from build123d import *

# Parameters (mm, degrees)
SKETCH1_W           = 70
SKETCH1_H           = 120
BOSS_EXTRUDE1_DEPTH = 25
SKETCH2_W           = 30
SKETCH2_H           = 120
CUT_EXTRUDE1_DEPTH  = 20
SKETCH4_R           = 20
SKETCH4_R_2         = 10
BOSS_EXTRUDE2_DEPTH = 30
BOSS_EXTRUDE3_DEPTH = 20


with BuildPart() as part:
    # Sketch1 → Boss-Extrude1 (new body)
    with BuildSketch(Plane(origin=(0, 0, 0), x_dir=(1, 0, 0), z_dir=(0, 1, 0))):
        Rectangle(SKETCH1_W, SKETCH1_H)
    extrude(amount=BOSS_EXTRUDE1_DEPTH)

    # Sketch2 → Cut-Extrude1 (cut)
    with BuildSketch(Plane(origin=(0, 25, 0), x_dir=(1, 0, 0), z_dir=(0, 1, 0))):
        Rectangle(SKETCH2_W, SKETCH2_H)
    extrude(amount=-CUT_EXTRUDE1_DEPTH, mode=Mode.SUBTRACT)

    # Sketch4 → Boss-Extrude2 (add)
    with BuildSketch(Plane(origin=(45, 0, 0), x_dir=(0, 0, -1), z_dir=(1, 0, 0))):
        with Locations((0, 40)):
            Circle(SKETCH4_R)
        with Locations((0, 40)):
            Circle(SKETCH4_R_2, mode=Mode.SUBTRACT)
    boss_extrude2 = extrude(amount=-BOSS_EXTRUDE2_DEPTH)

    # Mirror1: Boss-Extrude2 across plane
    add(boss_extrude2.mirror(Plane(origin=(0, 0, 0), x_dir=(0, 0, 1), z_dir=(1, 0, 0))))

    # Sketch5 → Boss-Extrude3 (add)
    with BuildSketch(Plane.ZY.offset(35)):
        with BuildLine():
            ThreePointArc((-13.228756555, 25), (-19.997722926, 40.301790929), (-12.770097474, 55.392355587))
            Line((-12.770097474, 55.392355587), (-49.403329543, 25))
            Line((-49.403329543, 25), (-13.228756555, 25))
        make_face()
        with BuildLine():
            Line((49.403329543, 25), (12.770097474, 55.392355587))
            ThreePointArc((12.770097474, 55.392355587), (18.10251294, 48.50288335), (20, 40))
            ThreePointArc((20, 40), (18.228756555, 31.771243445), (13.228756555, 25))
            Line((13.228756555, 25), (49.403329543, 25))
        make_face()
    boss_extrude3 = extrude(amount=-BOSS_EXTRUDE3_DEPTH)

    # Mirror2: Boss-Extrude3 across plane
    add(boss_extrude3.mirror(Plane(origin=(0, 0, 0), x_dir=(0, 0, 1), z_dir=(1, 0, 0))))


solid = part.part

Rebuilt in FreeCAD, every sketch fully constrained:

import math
import FreeCAD as App
import Part
import Sketcher

V = App.Vector
Q = App.Units.Quantity

doc = App.newDocument("Part")
body = doc.addObject("PartDesign::Body", "Body")

# Sketch on XZ plane
sketch1 = body.newObject("Sketcher::SketchObject", "Sketch")
sketch1.AttachmentSupport = (doc.getObject("XZ_Plane"), [""])
sketch1.MapMode = "FlatFace"
sketch1.addGeometry(Part.LineSegment(V(-35, -60, 0), V(-35, 60, 0)), False)
sketch1.addGeometry(Part.LineSegment(V(-35, 60, 0), V(35, 60, 0)), False)
sketch1.addGeometry(Part.LineSegment(V(35, 60, 0), V(35, -60, 0)), False)
sketch1.addGeometry(Part.LineSegment(V(35, -60, 0), V(-35, -60, 0)), False)
sketch1.addConstraint(Sketcher.Constraint("Coincident", 0, 2, 1, 1))
sketch1.addConstraint(Sketcher.Constraint("Coincident", 1, 2, 2, 1))
sketch1.addConstraint(Sketcher.Constraint("Coincident", 2, 2, 3, 1))
sketch1.addConstraint(Sketcher.Constraint("Coincident", 3, 2, 0, 1))
sketch1.addConstraint(Sketcher.Constraint("Vertical", 0))
sketch1.addConstraint(Sketcher.Constraint("Horizontal", 1))
sketch1.addConstraint(Sketcher.Constraint("Vertical", 2))
sketch1.addConstraint(Sketcher.Constraint("Horizontal", 3))
sketch1.addConstraint(Sketcher.Constraint("Symmetric", 0, 2, 2, 2, -1, 1))
sketch1.addConstraint(Sketcher.Constraint("DistanceX", 1, 1, 1, 2, Q("70 mm")))
sketch1.addConstraint(Sketcher.Constraint("DistanceY", 0, 1, 0, 2, Q("120 mm")))
pad1 = body.newObject("PartDesign::Pad", "Pad")
pad1.Profile = sketch1
pad1.Length = 25
pad1.Reversed = True

# Sketch on XZ plane
sketch2 = body.newObject("Sketcher::SketchObject", "Sketch001")
sketch2.AttachmentSupport = (doc.getObject("XZ_Plane"), [""])
sketch2.MapMode = "FlatFace"
sketch2.AttachmentOffset = App.Placement(V(0, 0, -25), App.Rotation())
sketch2.addGeometry(Part.LineSegment(V(-15, -60, 0), V(-15, 60, 0)), False)
sketch2.addGeometry(Part.LineSegment(V(-15, 60, 0), V(15, 60, 0)), False)
sketch2.addGeometry(Part.LineSegment(V(15, 60, 0), V(15, -60, 0)), False)
sketch2.addGeometry(Part.LineSegment(V(15, -60, 0), V(-15, -60, 0)), False)
sketch2.addConstraint(Sketcher.Constraint("Coincident", 0, 2, 1, 1))
sketch2.addConstraint(Sketcher.Constraint("Coincident", 1, 2, 2, 1))
sketch2.addConstraint(Sketcher.Constraint("Coincident", 2, 2, 3, 1))
sketch2.addConstraint(Sketcher.Constraint("Coincident", 3, 2, 0, 1))
sketch2.addConstraint(Sketcher.Constraint("Vertical", 0))
sketch2.addConstraint(Sketcher.Constraint("Horizontal", 1))
sketch2.addConstraint(Sketcher.Constraint("Vertical", 2))
sketch2.addConstraint(Sketcher.Constraint("Horizontal", 3))
sketch2.addConstraint(Sketcher.Constraint("Symmetric", 0, 2, 2, 2, -1, 1))
sketch2.addConstraint(Sketcher.Constraint("DistanceX", 1, 1, 1, 2, Q("30 mm")))
sketch2.addConstraint(Sketcher.Constraint("DistanceY", 0, 1, 0, 2, Q("120 mm")))
pocket1 = body.newObject("PartDesign::Pocket", "Pocket")
pocket1.Profile = sketch2
pocket1.Length = 20
pocket1.Reversed = True

# Sketch on YZ plane
sketch3 = body.newObject("Sketcher::SketchObject", "Sketch002")
sketch3.AttachmentSupport = (doc.getObject("YZ_Plane"), [""])
sketch3.MapMode = "FlatFace"
sketch3.AttachmentOffset = App.Placement(V(0, 0, 45), App.Rotation())
sketch3.addGeometry(Part.Circle(V(40, 0, 0), V(0, 0, 1), 20), False)
sketch3.addGeometry(Part.Circle(V(40, 0, 0), V(0, 0, 1), 10), False)
sketch3.addConstraint(Sketcher.Constraint("Coincident", 1, 3, 0, 3))
sketch3.addConstraint(Sketcher.Constraint("PointOnObject", 0, 3, -1))
sketch3.addConstraint(Sketcher.Constraint("Diameter", 0, Q("40 mm")))
sketch3.addConstraint(Sketcher.Constraint("Diameter", 1, Q("20 mm")))
sketch3.addConstraint(Sketcher.Constraint("DistanceX", -1, 1, 0, 3, Q("40 mm")))
pad2 = body.newObject("PartDesign::Pad", "Pad001")
pad2.Profile = sketch3
pad2.Length = 30
pad2.Reversed = True
doc.recompute()

mirrored = body.newObject("PartDesign::Mirrored", "Mirrored")
mirrored.Originals = [pad2]
mirrored.MirrorPlane = (doc.getObject("YZ_Plane"), [""])
body.Tip = mirrored

# Sketch on YZ plane
sketch4 = body.newObject("Sketcher::SketchObject", "Sketch003")
sketch4.AttachmentSupport = (doc.getObject("YZ_Plane"), [""])
sketch4.MapMode = "FlatFace"
sketch4.AttachmentOffset = App.Placement(V(0, 0, -35), App.Rotation())
sketch4.addGeometry(Part.ArcOfCircle(Part.Circle(V(40, 0, 0), V(0, 0, 1), 20), math.radians(-138.590378), math.radians(-39.680422)), False)
sketch4.addGeometry(Part.LineSegment(V(55.392356, -12.770097, 0), V(25, -49.40333, 0)), False)
sketch4.addGeometry(Part.LineSegment(V(25, -49.40333, 0), V(25, -13.228757, 0)), False)
sketch4.addGeometry(Part.LineSegment(V(25, 49.40333, 0), V(55.392356, 12.770097, 0)), False)
sketch4.addGeometry(Part.ArcOfCircle(Part.Circle(V(40, 0, 0), V(0, 0, 1), 20), math.radians(39.680422), math.radians(90)), False)
sketch4.addGeometry(Part.ArcOfCircle(Part.Circle(V(40, 0, 0), V(0, 0, 1), 20), math.radians(90), math.radians(138.590378)), False)
sketch4.addGeometry(Part.LineSegment(V(25, 13.228757, 0), V(25, 49.40333, 0)), False)
sketch4.addConstraint(Sketcher.Constraint("Tangent", 0, 2, 1, 1))
sketch4.addConstraint(Sketcher.Constraint("Coincident", 1, 2, 2, 1))
sketch4.addConstraint(Sketcher.Constraint("Coincident", 2, 2, 0, 1))
sketch4.addConstraint(Sketcher.Constraint("Tangent", 3, 2, 4, 1))
sketch4.addConstraint(Sketcher.Constraint("Tangent", 4, 2, 5, 1))
sketch4.addConstraint(Sketcher.Constraint("Coincident", 5, 2, 6, 1))
sketch4.addConstraint(Sketcher.Constraint("Coincident", 6, 2, 3, 1))
sketch4.addConstraint(Sketcher.Constraint("Vertical", 2))
sketch4.addConstraint(Sketcher.Constraint("Vertical", 6))
sketch4.addConstraint(Sketcher.Constraint("Coincident", 4, 3, 0, 3))
sketch4.addConstraint(Sketcher.Constraint("Equal", 0, 4))
sketch4.addConstraint(Sketcher.Constraint("Equal", 4, 5))
sketch4.addConstraint(Sketcher.Constraint("Symmetric", 0, 2, 3, 2, -1))
sketch4.addConstraint(Sketcher.Constraint("Vertical", 5, 3, 4, 2))
sketch4.addConstraint(Sketcher.Constraint("Vertical", 2, 2, 5, 2))
sketch4.addConstraint(Sketcher.Constraint("Radius", 0, Q("20 mm")))
sketch4.addConstraint(Sketcher.Constraint("DistanceX", -1, 1, 0, 3, Q("40 mm")))
sketch4.addConstraint(Sketcher.Constraint("DistanceX", -1, 1, 1, 2, Q("25 mm")))
sketch4.addConstraint(Sketcher.Constraint("DistanceY", 2, 1, 2, 2, Q("36.174573 mm")))
pad3 = body.newObject("PartDesign::Pad", "Pad002")
pad3.Profile = sketch4
pad3.Length = 20
doc.recompute()

mirrored2 = body.newObject("PartDesign::Mirrored", "Mirrored001")
mirrored2.Originals = [pad3]
mirrored2.MirrorPlane = (doc.getObject("YZ_Plane"), [""])
body.Tip = mirrored2

doc.recompute()
